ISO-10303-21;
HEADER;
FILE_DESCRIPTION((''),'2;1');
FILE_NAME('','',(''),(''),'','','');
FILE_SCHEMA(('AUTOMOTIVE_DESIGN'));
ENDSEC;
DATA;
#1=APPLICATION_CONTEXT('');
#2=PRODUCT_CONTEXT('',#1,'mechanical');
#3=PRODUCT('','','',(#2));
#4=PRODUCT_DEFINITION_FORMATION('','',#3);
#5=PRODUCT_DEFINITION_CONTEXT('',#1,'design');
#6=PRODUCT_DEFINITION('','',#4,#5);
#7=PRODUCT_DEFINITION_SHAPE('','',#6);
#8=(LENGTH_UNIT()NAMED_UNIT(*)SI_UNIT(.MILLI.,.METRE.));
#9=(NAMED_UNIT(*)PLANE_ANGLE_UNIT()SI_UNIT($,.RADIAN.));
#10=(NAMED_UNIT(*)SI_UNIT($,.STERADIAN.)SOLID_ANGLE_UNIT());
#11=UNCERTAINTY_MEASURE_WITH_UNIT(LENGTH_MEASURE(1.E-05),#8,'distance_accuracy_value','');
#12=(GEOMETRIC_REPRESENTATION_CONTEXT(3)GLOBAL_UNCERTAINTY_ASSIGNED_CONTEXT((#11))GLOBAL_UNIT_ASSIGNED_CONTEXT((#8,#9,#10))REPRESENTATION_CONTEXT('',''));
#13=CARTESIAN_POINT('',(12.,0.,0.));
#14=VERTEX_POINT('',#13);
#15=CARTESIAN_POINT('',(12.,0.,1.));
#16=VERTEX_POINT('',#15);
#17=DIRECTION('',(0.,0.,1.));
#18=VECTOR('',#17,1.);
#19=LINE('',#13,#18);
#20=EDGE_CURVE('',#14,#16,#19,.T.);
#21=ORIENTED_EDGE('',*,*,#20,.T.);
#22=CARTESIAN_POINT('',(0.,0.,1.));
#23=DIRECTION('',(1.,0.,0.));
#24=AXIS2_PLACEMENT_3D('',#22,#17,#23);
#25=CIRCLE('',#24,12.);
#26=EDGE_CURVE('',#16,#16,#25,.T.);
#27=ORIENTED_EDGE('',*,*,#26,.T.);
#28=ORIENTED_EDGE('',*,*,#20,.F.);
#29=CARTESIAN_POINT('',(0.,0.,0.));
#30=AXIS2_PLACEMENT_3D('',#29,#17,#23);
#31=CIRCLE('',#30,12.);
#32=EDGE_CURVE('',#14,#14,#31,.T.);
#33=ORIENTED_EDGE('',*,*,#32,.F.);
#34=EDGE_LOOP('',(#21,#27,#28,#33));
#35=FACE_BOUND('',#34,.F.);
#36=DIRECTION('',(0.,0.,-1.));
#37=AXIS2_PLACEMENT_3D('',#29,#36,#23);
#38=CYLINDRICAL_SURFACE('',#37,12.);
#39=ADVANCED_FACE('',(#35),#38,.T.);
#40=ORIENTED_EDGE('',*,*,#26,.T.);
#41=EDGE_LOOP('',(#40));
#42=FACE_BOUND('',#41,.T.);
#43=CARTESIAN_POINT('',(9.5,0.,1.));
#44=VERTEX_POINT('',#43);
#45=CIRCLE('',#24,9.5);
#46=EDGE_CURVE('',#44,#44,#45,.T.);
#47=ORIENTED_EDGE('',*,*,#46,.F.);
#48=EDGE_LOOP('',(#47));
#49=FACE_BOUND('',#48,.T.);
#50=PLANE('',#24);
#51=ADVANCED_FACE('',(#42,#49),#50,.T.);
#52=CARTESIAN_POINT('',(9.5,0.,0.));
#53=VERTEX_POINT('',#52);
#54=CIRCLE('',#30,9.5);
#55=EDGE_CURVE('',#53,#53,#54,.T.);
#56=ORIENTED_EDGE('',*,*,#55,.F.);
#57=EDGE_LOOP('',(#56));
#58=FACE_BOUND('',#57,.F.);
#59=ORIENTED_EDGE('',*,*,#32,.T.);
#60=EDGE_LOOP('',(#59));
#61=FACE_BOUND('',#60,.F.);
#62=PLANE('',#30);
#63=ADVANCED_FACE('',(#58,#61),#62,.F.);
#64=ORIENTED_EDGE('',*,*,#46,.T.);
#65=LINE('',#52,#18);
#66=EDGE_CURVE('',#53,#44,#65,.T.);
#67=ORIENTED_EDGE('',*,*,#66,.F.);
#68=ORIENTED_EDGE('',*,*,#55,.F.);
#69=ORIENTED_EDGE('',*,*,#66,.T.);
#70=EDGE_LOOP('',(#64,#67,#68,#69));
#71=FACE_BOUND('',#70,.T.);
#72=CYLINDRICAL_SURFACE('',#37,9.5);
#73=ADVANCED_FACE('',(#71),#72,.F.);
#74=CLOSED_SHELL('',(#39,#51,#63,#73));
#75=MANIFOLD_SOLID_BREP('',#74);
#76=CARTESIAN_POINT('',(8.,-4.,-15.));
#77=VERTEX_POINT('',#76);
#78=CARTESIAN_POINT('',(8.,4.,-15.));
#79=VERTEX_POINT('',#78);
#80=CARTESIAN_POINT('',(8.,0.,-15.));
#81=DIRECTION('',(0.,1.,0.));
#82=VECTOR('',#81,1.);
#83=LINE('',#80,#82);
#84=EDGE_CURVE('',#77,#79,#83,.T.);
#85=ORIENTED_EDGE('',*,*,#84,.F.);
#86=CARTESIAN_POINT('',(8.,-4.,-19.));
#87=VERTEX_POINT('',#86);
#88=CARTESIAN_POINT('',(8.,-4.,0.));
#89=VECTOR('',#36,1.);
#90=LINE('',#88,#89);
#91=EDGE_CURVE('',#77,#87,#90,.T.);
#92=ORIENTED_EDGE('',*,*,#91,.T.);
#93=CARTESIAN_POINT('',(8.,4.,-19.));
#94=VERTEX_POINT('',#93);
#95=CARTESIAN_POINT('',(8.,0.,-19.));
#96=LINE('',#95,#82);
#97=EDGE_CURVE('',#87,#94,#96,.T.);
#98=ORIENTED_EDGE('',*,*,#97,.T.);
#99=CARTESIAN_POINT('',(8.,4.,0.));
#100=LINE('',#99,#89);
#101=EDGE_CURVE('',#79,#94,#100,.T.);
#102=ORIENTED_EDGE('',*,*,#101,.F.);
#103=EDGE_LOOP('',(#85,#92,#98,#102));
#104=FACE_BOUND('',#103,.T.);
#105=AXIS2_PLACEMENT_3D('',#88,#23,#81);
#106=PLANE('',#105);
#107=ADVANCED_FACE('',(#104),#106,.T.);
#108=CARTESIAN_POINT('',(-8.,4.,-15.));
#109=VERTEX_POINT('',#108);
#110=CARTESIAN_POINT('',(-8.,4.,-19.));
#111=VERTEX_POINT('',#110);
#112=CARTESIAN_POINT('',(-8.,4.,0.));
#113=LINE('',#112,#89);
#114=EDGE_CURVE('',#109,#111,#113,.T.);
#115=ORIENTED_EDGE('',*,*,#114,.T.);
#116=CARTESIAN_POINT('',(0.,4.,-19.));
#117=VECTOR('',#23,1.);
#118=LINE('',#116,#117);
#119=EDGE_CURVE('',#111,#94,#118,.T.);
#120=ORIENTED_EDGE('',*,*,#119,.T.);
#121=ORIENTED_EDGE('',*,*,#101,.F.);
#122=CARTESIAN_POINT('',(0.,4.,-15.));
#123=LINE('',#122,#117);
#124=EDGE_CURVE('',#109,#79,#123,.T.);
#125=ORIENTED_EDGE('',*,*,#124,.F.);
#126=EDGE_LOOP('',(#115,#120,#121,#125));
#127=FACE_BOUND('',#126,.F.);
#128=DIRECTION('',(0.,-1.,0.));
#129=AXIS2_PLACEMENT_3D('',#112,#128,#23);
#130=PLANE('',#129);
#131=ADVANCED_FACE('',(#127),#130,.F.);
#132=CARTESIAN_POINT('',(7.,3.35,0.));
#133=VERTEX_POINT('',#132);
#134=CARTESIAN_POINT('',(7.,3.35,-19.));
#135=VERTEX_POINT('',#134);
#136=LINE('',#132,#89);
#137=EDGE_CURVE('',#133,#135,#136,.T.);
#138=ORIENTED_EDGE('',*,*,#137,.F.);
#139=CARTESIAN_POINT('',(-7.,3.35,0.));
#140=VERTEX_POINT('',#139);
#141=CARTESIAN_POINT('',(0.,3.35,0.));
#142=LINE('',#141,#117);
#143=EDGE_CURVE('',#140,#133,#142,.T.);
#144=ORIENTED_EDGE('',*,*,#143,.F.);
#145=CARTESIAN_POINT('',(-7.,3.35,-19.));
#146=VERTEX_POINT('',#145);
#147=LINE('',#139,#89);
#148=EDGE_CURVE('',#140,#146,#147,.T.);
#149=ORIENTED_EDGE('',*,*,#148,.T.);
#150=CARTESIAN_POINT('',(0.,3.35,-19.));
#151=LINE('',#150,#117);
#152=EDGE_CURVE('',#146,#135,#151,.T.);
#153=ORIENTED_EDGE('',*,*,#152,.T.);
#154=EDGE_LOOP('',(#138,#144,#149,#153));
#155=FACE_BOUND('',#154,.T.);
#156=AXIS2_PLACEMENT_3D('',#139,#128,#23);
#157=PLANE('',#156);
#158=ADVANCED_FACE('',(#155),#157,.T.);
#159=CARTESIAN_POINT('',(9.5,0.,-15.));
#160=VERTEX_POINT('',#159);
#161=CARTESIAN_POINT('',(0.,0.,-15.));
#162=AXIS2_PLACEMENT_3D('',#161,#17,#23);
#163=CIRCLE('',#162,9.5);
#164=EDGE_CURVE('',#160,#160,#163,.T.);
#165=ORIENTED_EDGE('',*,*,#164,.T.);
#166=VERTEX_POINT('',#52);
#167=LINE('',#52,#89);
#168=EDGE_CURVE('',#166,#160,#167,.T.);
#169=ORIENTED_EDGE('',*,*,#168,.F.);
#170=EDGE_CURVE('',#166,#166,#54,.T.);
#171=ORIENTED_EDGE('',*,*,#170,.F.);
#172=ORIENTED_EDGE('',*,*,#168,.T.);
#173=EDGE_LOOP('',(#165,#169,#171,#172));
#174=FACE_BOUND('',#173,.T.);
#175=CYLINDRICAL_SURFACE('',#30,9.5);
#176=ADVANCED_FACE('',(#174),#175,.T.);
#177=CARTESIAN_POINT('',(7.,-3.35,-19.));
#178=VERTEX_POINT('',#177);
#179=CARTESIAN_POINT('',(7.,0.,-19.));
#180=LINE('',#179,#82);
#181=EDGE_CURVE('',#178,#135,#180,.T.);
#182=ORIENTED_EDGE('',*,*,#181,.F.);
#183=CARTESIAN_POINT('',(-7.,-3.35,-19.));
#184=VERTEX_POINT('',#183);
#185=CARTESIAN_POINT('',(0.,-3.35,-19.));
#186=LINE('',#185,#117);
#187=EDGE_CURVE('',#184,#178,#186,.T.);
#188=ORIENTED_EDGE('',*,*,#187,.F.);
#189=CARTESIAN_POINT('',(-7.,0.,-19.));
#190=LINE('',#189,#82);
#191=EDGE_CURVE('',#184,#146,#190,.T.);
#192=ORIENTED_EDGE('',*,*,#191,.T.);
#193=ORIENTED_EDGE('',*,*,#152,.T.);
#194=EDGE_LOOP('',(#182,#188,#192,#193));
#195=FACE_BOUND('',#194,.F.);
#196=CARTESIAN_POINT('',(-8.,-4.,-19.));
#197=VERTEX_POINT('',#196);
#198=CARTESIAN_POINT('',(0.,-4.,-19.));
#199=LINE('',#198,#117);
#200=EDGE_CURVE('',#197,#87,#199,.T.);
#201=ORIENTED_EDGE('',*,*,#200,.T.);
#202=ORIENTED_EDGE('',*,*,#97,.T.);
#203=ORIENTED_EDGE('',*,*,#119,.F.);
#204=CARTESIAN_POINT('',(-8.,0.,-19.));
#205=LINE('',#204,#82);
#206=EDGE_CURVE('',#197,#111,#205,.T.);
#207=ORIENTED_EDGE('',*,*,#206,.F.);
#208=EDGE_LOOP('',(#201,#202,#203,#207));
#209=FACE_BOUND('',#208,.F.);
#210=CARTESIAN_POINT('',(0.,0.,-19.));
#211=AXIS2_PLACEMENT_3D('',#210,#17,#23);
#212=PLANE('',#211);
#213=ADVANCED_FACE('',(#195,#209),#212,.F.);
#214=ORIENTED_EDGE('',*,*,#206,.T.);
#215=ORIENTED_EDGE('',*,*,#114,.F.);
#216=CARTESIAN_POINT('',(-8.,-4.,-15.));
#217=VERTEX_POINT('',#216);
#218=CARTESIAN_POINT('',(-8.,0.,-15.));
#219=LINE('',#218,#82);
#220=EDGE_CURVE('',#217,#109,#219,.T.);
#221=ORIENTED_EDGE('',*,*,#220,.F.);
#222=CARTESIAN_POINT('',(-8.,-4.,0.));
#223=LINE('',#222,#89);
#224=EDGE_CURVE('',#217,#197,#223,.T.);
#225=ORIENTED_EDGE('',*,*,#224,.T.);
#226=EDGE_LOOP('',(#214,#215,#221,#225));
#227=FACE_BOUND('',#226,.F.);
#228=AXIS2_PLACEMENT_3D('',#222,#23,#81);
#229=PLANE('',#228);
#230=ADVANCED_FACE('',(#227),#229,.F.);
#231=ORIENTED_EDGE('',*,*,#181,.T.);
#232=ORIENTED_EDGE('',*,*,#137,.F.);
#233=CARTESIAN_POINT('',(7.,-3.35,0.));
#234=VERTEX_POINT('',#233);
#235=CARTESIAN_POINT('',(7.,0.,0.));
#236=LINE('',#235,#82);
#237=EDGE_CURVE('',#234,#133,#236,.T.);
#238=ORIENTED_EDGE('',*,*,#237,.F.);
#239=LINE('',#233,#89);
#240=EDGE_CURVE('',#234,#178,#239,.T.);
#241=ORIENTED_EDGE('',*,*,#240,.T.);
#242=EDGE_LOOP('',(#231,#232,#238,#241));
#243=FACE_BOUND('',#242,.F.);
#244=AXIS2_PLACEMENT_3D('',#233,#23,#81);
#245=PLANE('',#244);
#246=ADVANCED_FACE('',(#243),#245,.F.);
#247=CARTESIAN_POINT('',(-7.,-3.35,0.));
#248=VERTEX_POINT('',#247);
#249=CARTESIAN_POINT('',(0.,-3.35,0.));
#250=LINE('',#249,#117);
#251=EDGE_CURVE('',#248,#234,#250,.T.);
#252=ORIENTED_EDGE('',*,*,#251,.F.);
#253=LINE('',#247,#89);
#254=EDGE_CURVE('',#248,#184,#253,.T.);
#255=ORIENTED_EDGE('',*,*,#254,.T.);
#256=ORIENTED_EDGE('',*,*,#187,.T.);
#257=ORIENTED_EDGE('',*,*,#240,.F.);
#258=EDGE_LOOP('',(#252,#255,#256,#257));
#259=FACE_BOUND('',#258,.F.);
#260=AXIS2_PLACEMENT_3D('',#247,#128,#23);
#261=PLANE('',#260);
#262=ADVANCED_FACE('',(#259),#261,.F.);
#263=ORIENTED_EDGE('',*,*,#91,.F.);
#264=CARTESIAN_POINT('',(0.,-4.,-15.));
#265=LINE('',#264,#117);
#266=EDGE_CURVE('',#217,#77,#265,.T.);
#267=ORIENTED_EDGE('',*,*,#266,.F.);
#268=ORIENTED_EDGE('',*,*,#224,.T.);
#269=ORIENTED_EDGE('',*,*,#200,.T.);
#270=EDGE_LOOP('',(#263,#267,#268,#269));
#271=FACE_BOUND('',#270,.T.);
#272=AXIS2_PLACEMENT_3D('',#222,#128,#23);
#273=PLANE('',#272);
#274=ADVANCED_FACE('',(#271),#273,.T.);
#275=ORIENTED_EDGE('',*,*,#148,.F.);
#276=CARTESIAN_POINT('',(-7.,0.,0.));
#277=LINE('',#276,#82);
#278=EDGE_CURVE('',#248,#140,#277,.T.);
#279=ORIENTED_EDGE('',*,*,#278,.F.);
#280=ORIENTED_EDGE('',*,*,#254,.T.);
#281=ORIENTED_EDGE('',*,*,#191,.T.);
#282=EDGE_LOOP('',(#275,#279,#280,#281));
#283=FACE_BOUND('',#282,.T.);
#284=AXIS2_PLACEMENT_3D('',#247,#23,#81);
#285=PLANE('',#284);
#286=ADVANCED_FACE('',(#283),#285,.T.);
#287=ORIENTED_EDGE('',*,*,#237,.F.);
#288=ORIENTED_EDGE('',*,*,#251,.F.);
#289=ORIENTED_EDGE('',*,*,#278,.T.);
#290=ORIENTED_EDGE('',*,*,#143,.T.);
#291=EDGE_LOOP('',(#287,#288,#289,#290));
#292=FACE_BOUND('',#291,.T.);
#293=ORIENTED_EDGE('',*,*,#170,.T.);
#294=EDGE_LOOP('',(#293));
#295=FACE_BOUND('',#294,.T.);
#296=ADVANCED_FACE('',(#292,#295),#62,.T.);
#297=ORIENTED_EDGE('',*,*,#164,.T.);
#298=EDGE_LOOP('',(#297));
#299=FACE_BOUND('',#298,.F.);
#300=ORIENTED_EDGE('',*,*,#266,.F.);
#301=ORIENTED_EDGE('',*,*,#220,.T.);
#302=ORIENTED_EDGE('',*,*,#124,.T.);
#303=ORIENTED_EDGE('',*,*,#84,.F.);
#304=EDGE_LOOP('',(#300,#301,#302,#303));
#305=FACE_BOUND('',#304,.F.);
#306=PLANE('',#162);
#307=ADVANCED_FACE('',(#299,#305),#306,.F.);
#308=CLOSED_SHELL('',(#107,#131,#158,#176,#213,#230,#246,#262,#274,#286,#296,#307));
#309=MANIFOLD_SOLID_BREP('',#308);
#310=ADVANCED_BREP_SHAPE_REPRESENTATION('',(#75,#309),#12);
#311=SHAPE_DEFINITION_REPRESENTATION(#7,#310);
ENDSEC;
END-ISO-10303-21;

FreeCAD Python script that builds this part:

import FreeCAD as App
import Part
import Sketcher

V = App.Vector
Q = App.Units.Quantity

doc = App.newDocument("Part")
params = doc.addObject("Spreadsheet::Sheet", "Params")
for row, (alias, value) in enumerate([
    ("sketch1_width", "16 mm"),
    ("sketch1_width2", "14 mm"),
    ("sketch1_height", "8 mm"),
    ("sketch1_height2", "6.7 mm"),
    ("pad1_length", "19 mm"),
    ("sketch2_diameter", "24 mm"),
    ("sketch2_diameter2", "19 mm"),
    ("pad2_length", "1 mm"),
    ("sketch3_diameter", "19 mm"),
    ("sketch3_width", "16 mm"),
    ("sketch3_height", "8 mm"),
    ("pad3_length", "15 mm"),
], start=1):
    params.set(f"A{row}", alias)
    params.set(f"B{row}", "=" + value)
    params.setAlias(f"B{row}", alias)

body = doc.addObject("PartDesign::Body", "Body")

# Sketch on XY plane
sketch1 = body.newObject("Sketcher::SketchObject", "Sketch")
sketch1.AttachmentSupport = (doc.getObject("XY_Plane"), [""])
sketch1.MapMode = "FlatFace"
sketch1.addGeometry(Part.LineSegment(V(-8, 4, 0), V(-8, -4, 0)), False)
sketch1.addGeometry(Part.LineSegment(V(-8, -4, 0), V(8, -4, 0)), False)
sketch1.addGeometry(Part.LineSegment(V(8, -4, 0), V(8, 4, 0)), False)
sketch1.addGeometry(Part.LineSegment(V(8, 4, 0), V(-8, 4, 0)), False)
sketch1.addGeometry(Part.LineSegment(V(7, -3, 0), V(-7, -3, 0)), False)
sketch1.addGeometry(Part.LineSegment(V(-7, -3, 0), V(-7, 3, 0)), False)
sketch1.addGeometry(Part.LineSegment(V(-7, 3, 0), V(7, 3, 0)), False)
sketch1.addGeometry(Part.LineSegment(V(7, 3, 0), V(7, -3, 0)), False)
sketch1.addConstraint(Sketcher.Constraint("Coincident", 0, 2, 1, 1))
sketch1.addConstraint(Sketcher.Constraint("Coincident", 1, 2, 2, 1))
sketch1.addConstraint(Sketcher.Constraint("Coincident", 2, 2, 3, 1))
sketch1.addConstraint(Sketcher.Constraint("Coincident", 3, 2, 0, 1))
sketch1.addConstraint(Sketcher.Constraint("Coincident", 4, 2, 5, 1))
sketch1.addConstraint(Sketcher.Constraint("Coincident", 5, 2, 6, 1))
sketch1.addConstraint(Sketcher.Constraint("Coincident", 6, 2, 7, 1))
sketch1.addConstraint(Sketcher.Constraint("Coincident", 7, 2, 4, 1))
sketch1.addConstraint(Sketcher.Constraint("Vertical", 0))
sketch1.addConstraint(Sketcher.Constraint("Horizontal", 1))
sketch1.addConstraint(Sketcher.Constraint("Vertical", 2))
sketch1.addConstraint(Sketcher.Constraint("Horizontal", 3))
sketch1.addConstraint(Sketcher.Constraint("Horizontal", 4))
sketch1.addConstraint(Sketcher.Constraint("Vertical", 5))
sketch1.addConstraint(Sketcher.Constraint("Horizontal", 6))
sketch1.addConstraint(Sketcher.Constraint("Vertical", 7))
sketch1.addConstraint(Sketcher.Constraint("Symmetric", 0, 2, 2, 2, -1, 1))
sketch1.addConstraint(Sketcher.Constraint("Symmetric", 4, 2, 6, 2, -1, 1))
sketch1.addConstraint(Sketcher.Constraint("DistanceX", 1, 1, 1, 2, Q("16 mm")))
sketch1.addConstraint(Sketcher.Constraint("DistanceX", 4, 2, 4, 1, Q("14 mm")))
sketch1.addConstraint(Sketcher.Constraint("DistanceY", 0, 2, 0, 1, Q("8 mm")))
sketch1.addConstraint(Sketcher.Constraint("DistanceY", 5, 1, 5, 2, Q("6.7 mm")))
sketch1.setExpression("Constraints[18]", "Params.sketch1_width")
sketch1.setExpression("Constraints[19]", "Params.sketch1_width2")
sketch1.setExpression("Constraints[20]", "Params.sketch1_height")
sketch1.setExpression("Constraints[21]", "Params.sketch1_height2")
pad1 = body.newObject("PartDesign::Pad", "Pad")
pad1.Profile = sketch1
pad1.setExpression("Length", "Params.pad1_length")
pad1.Reversed = True
body2 = doc.addObject("PartDesign::Body", "Body001")

# Sketch on XY plane
sketch2 = body2.newObject("Sketcher::SketchObject", "Sketch001")
sketch2.AttachmentSupport = (doc.getObject("XY_Plane001"), [""])
sketch2.MapMode = "FlatFace"
sketch2.addGeometry(Part.Circle(V(0, 0, 0), V(0, 0, 1), 12), False)
sketch2.addGeometry(Part.Circle(V(0, 0, 0), V(0, 0, 1), 10), False)
sketch2.addConstraint(Sketcher.Constraint("Coincident", 0, 3, -1, 1))
sketch2.addConstraint(Sketcher.Constraint("Coincident", 1, 3, -1, 1))
sketch2.addConstraint(Sketcher.Constraint("Diameter", 0, Q("24 mm")))
sketch2.addConstraint(Sketcher.Constraint("Diameter", 1, Q("19 mm")))
sketch2.setExpression("Constraints[2]", "Params.sketch2_diameter")
sketch2.setExpression("Constraints[3]", "Params.sketch2_diameter2")
pad2 = body2.newObject("PartDesign::Pad", "Pad001")
pad2.Profile = sketch2
pad2.setExpression("Length", "Params.pad2_length")
body.AllowCompound = True
doc.recompute()

boolean = body.newObject("PartDesign::Boolean", "Boolean")
boolean.Type = "Fuse"
boolean.addObjects([body2])

# Sketch on XY plane
sketch3 = body.newObject("Sketcher::SketchObject", "Sketch002")
sketch3.AttachmentSupport = (doc.getObject("XY_Plane"), [""])
sketch3.MapMode = "FlatFace"
sketch3.addGeometry(Part.Circle(V(0, 0, 0), V(0, 0, 1), 10), False)
sketch3.addGeometry(Part.LineSegment(V(8, -4, 0), V(-8, -4, 0)), False)
sketch3.addGeometry(Part.LineSegment(V(-8, -4, 0), V(-8, 4, 0)), False)
sketch3.addGeometry(Part.LineSegment(V(-8, 4, 0), V(8, 4, 0)), False)
sketch3.addGeometry(Part.LineSegment(V(8, 4, 0), V(8, -4, 0)), False)
sketch3.addConstraint(Sketcher.Constraint("Coincident", 1, 2, 2, 1))
sketch3.addConstraint(Sketcher.Constraint("Coincident", 2, 2, 3, 1))
sketch3.addConstraint(Sketcher.Constraint("Coincident", 3, 2, 4, 1))
sketch3.addConstraint(Sketcher.Constraint("Coincident", 4, 2, 1, 1))
sketch3.addConstraint(Sketcher.Constraint("Horizontal", 1))
sketch3.addConstraint(Sketcher.Constraint("Vertical", 2))
sketch3.addConstraint(Sketcher.Constraint("Horizontal", 3))
sketch3.addConstraint(Sketcher.Constraint("Vertical", 4))
sketch3.addConstraint(Sketcher.Constraint("Coincident", 0, 3, -1, 1))
sketch3.addConstraint(Sketcher.Constraint("Symmetric", 1, 2, 3, 2, -1, 1))
sketch3.addConstraint(Sketcher.Constraint("Diameter", 0, Q("19 mm")))
sketch3.addConstraint(Sketcher.Constraint("DistanceX", 1, 2, 1, 1, Q("16 mm")))
sketch3.addConstraint(Sketcher.Constraint("DistanceY", 2, 1, 2, 2, Q("8 mm")))
sketch3.setExpression("Constraints[10]", "Params.sketch3_diameter")
sketch3.setExpression("Constraints[11]", "Params.sketch3_width")
sketch3.setExpression("Constraints[12]", "Params.sketch3_height")
pad3 = body.newObject("PartDesign::Pad", "Pad002")
pad3.Profile = sketch3
pad3.setExpression("Length", "Params.pad3_length")
pad3.Reversed = True

doc.recompute()
